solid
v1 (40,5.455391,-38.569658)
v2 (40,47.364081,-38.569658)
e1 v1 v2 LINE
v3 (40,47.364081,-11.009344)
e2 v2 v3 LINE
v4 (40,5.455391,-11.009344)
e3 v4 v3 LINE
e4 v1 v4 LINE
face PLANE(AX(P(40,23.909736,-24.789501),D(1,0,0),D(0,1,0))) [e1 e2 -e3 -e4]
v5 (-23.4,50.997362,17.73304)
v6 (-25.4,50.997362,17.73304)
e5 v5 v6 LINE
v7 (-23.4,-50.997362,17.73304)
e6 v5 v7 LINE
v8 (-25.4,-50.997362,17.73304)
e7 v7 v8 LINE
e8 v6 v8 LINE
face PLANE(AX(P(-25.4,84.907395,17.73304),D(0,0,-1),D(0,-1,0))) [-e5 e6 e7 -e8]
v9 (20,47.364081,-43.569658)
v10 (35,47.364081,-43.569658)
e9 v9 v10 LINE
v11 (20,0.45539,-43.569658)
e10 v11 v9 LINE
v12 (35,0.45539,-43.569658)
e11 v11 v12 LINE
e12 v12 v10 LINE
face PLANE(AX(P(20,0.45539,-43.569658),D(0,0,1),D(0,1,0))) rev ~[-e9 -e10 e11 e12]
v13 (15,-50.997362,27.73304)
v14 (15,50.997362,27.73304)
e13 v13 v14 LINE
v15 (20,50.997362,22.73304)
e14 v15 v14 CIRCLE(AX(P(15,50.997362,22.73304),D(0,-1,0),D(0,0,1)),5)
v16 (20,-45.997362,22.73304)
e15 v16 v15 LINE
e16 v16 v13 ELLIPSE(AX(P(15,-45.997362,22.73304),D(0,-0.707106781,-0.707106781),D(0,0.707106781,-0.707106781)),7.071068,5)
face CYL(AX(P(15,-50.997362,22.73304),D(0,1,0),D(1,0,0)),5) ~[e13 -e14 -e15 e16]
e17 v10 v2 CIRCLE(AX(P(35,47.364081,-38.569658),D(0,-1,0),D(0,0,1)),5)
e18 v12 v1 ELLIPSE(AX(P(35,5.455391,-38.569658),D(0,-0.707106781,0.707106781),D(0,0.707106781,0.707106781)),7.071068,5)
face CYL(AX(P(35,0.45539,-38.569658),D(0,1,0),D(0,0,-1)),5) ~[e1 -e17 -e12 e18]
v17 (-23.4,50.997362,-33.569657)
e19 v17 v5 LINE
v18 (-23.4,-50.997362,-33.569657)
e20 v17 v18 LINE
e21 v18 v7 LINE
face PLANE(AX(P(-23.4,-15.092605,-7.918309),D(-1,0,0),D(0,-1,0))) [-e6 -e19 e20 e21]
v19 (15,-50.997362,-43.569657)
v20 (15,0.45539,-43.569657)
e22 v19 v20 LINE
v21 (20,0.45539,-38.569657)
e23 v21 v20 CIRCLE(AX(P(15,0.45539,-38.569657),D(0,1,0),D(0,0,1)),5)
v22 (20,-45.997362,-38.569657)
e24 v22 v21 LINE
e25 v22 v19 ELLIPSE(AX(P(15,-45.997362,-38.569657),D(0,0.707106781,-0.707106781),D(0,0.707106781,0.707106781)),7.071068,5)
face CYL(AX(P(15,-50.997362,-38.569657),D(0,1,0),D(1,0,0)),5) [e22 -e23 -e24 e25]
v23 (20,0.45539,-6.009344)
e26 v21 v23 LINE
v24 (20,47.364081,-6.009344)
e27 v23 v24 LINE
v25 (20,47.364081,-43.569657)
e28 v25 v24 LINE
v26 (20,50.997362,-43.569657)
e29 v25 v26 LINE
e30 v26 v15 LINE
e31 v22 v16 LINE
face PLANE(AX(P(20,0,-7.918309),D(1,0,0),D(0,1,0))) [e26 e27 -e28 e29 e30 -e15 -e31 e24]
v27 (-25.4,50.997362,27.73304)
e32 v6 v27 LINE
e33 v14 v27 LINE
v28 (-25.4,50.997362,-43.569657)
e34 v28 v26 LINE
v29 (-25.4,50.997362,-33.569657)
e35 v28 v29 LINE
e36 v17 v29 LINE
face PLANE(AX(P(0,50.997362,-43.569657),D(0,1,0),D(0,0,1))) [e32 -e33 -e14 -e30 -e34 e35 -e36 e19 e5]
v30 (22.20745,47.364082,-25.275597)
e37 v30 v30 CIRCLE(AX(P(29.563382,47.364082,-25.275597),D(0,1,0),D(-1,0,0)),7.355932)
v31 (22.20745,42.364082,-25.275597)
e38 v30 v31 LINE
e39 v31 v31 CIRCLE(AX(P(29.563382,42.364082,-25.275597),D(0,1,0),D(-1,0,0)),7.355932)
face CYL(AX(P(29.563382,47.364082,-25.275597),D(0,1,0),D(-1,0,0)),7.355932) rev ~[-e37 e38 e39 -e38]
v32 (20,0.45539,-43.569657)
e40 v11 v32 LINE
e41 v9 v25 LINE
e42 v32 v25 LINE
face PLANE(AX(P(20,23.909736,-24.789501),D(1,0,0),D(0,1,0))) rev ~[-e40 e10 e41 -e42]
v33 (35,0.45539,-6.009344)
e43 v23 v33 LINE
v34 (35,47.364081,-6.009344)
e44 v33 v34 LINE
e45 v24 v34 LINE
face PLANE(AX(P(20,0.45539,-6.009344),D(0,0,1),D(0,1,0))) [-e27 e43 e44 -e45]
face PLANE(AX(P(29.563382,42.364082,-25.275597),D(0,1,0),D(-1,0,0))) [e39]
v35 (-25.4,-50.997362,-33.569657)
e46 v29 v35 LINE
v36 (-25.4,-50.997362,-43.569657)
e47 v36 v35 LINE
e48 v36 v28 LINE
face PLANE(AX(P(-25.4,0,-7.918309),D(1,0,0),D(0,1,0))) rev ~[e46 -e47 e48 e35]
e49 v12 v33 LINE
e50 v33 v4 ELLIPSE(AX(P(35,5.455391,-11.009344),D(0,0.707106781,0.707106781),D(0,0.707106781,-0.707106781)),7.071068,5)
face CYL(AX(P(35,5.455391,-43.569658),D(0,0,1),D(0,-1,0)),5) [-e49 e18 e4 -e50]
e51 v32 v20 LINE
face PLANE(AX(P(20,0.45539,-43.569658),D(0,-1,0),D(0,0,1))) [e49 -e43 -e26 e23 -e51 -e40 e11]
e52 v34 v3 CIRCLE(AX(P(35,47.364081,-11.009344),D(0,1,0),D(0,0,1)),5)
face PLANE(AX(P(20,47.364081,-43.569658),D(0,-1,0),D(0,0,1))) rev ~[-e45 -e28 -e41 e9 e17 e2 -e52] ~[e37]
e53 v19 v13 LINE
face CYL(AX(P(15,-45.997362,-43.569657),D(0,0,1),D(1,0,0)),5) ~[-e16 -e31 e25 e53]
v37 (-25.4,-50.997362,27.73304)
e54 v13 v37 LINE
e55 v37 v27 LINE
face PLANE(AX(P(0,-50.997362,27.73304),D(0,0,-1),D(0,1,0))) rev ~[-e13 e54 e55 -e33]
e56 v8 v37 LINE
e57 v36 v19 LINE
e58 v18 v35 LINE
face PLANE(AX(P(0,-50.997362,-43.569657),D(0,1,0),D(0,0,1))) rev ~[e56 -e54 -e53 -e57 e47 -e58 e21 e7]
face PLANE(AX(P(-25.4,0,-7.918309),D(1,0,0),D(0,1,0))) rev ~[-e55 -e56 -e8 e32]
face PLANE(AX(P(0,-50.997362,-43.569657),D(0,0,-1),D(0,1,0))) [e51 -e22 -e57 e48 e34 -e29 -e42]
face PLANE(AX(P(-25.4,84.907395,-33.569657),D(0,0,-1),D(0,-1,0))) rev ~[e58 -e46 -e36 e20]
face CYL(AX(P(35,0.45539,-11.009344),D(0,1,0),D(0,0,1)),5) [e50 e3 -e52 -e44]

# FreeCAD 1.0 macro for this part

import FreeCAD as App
import Part
import Sketcher
from FreeCAD import Vector


def edges_at(feature, points):
    """Names of the edges that pass closest to the given points."""
    edges = feature.Shape.Edges
    near = lambda p: min(range(len(edges)), key=lambda i: edges[i].distToShape(Part.Vertex(*p))[0])
    return sorted({f"Edge{near(p) + 1}" for p in points})


def add_polygon(sketch, points):
    """Adds a closed chain of lines whose ends are joined by coincident constraints."""
    first, n = sketch.GeometryCount, len(points)
    for a, b in zip(points, points[1:] + points[:1]):
        sketch.addGeometry(Part.LineSegment(App.Vector(*a, 0), App.Vector(*b, 0)), False)
    for i in range(n):
        sketch.addConstraint(Sketcher.Constraint("Coincident", first + i, 2, first + (i + 1) % n, 1))

doc = App.newDocument("Part")
body = doc.addObject("PartDesign::Body", "Body")

# Sketch on YZ plane
sketch1 = body.newObject("Sketcher::SketchObject", "Sketch")
sketch1.AttachmentSupport = (doc.getObject("YZ_Plane"), [""])
sketch1.MapMode = "FlatFace"
add_polygon(sketch1, [(-51, 28), (-51, -44), (51, -44), (51, 28)])  # lines 0-3
sketch1.addConstraint([
    Sketcher.Constraint("Vertical", 0),
    Sketcher.Constraint("Horizontal", 1),
    Sketcher.Constraint("Vertical", 2),
    Sketcher.Constraint("Horizontal", 3),
    Sketcher.Constraint("DistanceX", 1, 1, 1, 2, 101.994724),
    Sketcher.Constraint("DistanceY", 0, 2, 0, 1, 71.302697),
    Sketcher.Constraint("DistanceY", -1, 1, 2, 2, 27.73304),
    Sketcher.Constraint("DistanceX", 0, 2, -1, 1, 50.997362),
])
pad1 = body.newObject("PartDesign::Pad", "Pad")
pad1.Profile = sketch1
pad1.Type = "TwoLengths"
pad1.Length = 20
pad1.Length2 = 25.4

# Sketch on YZ plane
sketch2 = body.newObject("Sketcher::SketchObject", "Sketch001")
sketch2.AttachmentSupport = (doc.getObject("YZ_Plane"), [""])
sketch2.MapMode = "FlatFace"
sketch2.AttachmentOffset = App.Placement(Vector(0, 0, 20), App.Rotation())
add_polygon(sketch2, [(0, -6), (0, -44), (47, -44), (47, -6)])  # lines 0-3
sketch2.addConstraint([
    Sketcher.Constraint("Vertical", 0),
    Sketcher.Constraint("Horizontal", 1),
    Sketcher.Constraint("Vertical", 2),
    Sketcher.Constraint("Horizontal", 3),
    Sketcher.Constraint("DistanceX", 1, 1, 1, 2, 46.908691),
    Sketcher.Constraint("DistanceY", 0, 2, 0, 1, 37.560314),
    Sketcher.Constraint("DistanceX", -1, 1, 0, 2, 0.45539),
    Sketcher.Constraint("DistanceY", 0, 2, -1, 1, 43.569658),
])
pad2 = body.newObject("PartDesign::Pad", "Pad001")
pad2.Profile = sketch2
pad2.Length = 20

# Sketch on XZ plane
sketch3 = body.newObject("Sketcher::SketchObject", "Sketch002")
sketch3.AttachmentSupport = (doc.getObject("XZ_Plane"), [""])
sketch3.MapMode = "FlatFace"
sketch3.AttachmentOffset = App.Placement(Vector(0, 0, -47.364082), App.Rotation())
sketch3.addGeometry(Part.Circle(Vector(30, -25, 0), Vector(0, 0, 1), 7), False)
sketch3.addConstraint([
    Sketcher.Constraint("Diameter", 0, 14.711864),
    Sketcher.Constraint("DistanceX", -1, 1, 0, 3, 29.563382),
    Sketcher.Constraint("DistanceY", 0, 3, -1, 1, 25.275597),
])
pocket1 = body.newObject("PartDesign::Pocket", "Pocket")
pocket1.Profile = sketch3
pocket1.Length = 5
pocket1.Reversed = True
doc.recompute()

fillet = body.newObject("PartDesign::Fillet", "Fillet")
fillet.Base = (pocket1, edges_at(pocket1, [
    (20, 0, 27.733),
    (20, -50.997, -7.918),
    (20, -25.271, -43.57),
    (40, 23.91, -43.57),
    (40, 23.91, -6.009),
    (40, 0.455, -24.79),
]))
fillet.Radius = 5

# Sketch on YZ plane
sketch4 = body.newObject("Sketcher::SketchObject", "Sketch003")
sketch4.AttachmentSupport = (doc.getObject("YZ_Plane"), [""])
sketch4.MapMode = "FlatFace"
sketch4.AttachmentOffset = App.Placement(Vector(0, 0, -25.4), App.Rotation())
add_polygon(sketch4, [(85, 18), (85, -34), (-115, -34), (-115, 18)])  # lines 0-3
sketch4.addConstraint([
    Sketcher.Constraint("Vertical", 0),
    Sketcher.Constraint("Horizontal", 1),
    Sketcher.Constraint("Vertical", 2),
    Sketcher.Constraint("Horizontal", 3),
    Sketcher.Constraint("DistanceX", 1, 2, 1, 1, 200.0),
    Sketcher.Constraint("DistanceY", 0, 2, 0, 1, 51.302697),
    Sketcher.Constraint("DistanceY", -1, 1, 2, 2, 17.73304),
    Sketcher.Constraint("DistanceX", -1, 1, 0, 2, 84.907395),
])
pocket2 = body.newObject("PartDesign::Pocket", "Pocket001")
pocket2.Profile = sketch4
pocket2.Length = 2
pocket2.Reversed = True

doc.recompute()
